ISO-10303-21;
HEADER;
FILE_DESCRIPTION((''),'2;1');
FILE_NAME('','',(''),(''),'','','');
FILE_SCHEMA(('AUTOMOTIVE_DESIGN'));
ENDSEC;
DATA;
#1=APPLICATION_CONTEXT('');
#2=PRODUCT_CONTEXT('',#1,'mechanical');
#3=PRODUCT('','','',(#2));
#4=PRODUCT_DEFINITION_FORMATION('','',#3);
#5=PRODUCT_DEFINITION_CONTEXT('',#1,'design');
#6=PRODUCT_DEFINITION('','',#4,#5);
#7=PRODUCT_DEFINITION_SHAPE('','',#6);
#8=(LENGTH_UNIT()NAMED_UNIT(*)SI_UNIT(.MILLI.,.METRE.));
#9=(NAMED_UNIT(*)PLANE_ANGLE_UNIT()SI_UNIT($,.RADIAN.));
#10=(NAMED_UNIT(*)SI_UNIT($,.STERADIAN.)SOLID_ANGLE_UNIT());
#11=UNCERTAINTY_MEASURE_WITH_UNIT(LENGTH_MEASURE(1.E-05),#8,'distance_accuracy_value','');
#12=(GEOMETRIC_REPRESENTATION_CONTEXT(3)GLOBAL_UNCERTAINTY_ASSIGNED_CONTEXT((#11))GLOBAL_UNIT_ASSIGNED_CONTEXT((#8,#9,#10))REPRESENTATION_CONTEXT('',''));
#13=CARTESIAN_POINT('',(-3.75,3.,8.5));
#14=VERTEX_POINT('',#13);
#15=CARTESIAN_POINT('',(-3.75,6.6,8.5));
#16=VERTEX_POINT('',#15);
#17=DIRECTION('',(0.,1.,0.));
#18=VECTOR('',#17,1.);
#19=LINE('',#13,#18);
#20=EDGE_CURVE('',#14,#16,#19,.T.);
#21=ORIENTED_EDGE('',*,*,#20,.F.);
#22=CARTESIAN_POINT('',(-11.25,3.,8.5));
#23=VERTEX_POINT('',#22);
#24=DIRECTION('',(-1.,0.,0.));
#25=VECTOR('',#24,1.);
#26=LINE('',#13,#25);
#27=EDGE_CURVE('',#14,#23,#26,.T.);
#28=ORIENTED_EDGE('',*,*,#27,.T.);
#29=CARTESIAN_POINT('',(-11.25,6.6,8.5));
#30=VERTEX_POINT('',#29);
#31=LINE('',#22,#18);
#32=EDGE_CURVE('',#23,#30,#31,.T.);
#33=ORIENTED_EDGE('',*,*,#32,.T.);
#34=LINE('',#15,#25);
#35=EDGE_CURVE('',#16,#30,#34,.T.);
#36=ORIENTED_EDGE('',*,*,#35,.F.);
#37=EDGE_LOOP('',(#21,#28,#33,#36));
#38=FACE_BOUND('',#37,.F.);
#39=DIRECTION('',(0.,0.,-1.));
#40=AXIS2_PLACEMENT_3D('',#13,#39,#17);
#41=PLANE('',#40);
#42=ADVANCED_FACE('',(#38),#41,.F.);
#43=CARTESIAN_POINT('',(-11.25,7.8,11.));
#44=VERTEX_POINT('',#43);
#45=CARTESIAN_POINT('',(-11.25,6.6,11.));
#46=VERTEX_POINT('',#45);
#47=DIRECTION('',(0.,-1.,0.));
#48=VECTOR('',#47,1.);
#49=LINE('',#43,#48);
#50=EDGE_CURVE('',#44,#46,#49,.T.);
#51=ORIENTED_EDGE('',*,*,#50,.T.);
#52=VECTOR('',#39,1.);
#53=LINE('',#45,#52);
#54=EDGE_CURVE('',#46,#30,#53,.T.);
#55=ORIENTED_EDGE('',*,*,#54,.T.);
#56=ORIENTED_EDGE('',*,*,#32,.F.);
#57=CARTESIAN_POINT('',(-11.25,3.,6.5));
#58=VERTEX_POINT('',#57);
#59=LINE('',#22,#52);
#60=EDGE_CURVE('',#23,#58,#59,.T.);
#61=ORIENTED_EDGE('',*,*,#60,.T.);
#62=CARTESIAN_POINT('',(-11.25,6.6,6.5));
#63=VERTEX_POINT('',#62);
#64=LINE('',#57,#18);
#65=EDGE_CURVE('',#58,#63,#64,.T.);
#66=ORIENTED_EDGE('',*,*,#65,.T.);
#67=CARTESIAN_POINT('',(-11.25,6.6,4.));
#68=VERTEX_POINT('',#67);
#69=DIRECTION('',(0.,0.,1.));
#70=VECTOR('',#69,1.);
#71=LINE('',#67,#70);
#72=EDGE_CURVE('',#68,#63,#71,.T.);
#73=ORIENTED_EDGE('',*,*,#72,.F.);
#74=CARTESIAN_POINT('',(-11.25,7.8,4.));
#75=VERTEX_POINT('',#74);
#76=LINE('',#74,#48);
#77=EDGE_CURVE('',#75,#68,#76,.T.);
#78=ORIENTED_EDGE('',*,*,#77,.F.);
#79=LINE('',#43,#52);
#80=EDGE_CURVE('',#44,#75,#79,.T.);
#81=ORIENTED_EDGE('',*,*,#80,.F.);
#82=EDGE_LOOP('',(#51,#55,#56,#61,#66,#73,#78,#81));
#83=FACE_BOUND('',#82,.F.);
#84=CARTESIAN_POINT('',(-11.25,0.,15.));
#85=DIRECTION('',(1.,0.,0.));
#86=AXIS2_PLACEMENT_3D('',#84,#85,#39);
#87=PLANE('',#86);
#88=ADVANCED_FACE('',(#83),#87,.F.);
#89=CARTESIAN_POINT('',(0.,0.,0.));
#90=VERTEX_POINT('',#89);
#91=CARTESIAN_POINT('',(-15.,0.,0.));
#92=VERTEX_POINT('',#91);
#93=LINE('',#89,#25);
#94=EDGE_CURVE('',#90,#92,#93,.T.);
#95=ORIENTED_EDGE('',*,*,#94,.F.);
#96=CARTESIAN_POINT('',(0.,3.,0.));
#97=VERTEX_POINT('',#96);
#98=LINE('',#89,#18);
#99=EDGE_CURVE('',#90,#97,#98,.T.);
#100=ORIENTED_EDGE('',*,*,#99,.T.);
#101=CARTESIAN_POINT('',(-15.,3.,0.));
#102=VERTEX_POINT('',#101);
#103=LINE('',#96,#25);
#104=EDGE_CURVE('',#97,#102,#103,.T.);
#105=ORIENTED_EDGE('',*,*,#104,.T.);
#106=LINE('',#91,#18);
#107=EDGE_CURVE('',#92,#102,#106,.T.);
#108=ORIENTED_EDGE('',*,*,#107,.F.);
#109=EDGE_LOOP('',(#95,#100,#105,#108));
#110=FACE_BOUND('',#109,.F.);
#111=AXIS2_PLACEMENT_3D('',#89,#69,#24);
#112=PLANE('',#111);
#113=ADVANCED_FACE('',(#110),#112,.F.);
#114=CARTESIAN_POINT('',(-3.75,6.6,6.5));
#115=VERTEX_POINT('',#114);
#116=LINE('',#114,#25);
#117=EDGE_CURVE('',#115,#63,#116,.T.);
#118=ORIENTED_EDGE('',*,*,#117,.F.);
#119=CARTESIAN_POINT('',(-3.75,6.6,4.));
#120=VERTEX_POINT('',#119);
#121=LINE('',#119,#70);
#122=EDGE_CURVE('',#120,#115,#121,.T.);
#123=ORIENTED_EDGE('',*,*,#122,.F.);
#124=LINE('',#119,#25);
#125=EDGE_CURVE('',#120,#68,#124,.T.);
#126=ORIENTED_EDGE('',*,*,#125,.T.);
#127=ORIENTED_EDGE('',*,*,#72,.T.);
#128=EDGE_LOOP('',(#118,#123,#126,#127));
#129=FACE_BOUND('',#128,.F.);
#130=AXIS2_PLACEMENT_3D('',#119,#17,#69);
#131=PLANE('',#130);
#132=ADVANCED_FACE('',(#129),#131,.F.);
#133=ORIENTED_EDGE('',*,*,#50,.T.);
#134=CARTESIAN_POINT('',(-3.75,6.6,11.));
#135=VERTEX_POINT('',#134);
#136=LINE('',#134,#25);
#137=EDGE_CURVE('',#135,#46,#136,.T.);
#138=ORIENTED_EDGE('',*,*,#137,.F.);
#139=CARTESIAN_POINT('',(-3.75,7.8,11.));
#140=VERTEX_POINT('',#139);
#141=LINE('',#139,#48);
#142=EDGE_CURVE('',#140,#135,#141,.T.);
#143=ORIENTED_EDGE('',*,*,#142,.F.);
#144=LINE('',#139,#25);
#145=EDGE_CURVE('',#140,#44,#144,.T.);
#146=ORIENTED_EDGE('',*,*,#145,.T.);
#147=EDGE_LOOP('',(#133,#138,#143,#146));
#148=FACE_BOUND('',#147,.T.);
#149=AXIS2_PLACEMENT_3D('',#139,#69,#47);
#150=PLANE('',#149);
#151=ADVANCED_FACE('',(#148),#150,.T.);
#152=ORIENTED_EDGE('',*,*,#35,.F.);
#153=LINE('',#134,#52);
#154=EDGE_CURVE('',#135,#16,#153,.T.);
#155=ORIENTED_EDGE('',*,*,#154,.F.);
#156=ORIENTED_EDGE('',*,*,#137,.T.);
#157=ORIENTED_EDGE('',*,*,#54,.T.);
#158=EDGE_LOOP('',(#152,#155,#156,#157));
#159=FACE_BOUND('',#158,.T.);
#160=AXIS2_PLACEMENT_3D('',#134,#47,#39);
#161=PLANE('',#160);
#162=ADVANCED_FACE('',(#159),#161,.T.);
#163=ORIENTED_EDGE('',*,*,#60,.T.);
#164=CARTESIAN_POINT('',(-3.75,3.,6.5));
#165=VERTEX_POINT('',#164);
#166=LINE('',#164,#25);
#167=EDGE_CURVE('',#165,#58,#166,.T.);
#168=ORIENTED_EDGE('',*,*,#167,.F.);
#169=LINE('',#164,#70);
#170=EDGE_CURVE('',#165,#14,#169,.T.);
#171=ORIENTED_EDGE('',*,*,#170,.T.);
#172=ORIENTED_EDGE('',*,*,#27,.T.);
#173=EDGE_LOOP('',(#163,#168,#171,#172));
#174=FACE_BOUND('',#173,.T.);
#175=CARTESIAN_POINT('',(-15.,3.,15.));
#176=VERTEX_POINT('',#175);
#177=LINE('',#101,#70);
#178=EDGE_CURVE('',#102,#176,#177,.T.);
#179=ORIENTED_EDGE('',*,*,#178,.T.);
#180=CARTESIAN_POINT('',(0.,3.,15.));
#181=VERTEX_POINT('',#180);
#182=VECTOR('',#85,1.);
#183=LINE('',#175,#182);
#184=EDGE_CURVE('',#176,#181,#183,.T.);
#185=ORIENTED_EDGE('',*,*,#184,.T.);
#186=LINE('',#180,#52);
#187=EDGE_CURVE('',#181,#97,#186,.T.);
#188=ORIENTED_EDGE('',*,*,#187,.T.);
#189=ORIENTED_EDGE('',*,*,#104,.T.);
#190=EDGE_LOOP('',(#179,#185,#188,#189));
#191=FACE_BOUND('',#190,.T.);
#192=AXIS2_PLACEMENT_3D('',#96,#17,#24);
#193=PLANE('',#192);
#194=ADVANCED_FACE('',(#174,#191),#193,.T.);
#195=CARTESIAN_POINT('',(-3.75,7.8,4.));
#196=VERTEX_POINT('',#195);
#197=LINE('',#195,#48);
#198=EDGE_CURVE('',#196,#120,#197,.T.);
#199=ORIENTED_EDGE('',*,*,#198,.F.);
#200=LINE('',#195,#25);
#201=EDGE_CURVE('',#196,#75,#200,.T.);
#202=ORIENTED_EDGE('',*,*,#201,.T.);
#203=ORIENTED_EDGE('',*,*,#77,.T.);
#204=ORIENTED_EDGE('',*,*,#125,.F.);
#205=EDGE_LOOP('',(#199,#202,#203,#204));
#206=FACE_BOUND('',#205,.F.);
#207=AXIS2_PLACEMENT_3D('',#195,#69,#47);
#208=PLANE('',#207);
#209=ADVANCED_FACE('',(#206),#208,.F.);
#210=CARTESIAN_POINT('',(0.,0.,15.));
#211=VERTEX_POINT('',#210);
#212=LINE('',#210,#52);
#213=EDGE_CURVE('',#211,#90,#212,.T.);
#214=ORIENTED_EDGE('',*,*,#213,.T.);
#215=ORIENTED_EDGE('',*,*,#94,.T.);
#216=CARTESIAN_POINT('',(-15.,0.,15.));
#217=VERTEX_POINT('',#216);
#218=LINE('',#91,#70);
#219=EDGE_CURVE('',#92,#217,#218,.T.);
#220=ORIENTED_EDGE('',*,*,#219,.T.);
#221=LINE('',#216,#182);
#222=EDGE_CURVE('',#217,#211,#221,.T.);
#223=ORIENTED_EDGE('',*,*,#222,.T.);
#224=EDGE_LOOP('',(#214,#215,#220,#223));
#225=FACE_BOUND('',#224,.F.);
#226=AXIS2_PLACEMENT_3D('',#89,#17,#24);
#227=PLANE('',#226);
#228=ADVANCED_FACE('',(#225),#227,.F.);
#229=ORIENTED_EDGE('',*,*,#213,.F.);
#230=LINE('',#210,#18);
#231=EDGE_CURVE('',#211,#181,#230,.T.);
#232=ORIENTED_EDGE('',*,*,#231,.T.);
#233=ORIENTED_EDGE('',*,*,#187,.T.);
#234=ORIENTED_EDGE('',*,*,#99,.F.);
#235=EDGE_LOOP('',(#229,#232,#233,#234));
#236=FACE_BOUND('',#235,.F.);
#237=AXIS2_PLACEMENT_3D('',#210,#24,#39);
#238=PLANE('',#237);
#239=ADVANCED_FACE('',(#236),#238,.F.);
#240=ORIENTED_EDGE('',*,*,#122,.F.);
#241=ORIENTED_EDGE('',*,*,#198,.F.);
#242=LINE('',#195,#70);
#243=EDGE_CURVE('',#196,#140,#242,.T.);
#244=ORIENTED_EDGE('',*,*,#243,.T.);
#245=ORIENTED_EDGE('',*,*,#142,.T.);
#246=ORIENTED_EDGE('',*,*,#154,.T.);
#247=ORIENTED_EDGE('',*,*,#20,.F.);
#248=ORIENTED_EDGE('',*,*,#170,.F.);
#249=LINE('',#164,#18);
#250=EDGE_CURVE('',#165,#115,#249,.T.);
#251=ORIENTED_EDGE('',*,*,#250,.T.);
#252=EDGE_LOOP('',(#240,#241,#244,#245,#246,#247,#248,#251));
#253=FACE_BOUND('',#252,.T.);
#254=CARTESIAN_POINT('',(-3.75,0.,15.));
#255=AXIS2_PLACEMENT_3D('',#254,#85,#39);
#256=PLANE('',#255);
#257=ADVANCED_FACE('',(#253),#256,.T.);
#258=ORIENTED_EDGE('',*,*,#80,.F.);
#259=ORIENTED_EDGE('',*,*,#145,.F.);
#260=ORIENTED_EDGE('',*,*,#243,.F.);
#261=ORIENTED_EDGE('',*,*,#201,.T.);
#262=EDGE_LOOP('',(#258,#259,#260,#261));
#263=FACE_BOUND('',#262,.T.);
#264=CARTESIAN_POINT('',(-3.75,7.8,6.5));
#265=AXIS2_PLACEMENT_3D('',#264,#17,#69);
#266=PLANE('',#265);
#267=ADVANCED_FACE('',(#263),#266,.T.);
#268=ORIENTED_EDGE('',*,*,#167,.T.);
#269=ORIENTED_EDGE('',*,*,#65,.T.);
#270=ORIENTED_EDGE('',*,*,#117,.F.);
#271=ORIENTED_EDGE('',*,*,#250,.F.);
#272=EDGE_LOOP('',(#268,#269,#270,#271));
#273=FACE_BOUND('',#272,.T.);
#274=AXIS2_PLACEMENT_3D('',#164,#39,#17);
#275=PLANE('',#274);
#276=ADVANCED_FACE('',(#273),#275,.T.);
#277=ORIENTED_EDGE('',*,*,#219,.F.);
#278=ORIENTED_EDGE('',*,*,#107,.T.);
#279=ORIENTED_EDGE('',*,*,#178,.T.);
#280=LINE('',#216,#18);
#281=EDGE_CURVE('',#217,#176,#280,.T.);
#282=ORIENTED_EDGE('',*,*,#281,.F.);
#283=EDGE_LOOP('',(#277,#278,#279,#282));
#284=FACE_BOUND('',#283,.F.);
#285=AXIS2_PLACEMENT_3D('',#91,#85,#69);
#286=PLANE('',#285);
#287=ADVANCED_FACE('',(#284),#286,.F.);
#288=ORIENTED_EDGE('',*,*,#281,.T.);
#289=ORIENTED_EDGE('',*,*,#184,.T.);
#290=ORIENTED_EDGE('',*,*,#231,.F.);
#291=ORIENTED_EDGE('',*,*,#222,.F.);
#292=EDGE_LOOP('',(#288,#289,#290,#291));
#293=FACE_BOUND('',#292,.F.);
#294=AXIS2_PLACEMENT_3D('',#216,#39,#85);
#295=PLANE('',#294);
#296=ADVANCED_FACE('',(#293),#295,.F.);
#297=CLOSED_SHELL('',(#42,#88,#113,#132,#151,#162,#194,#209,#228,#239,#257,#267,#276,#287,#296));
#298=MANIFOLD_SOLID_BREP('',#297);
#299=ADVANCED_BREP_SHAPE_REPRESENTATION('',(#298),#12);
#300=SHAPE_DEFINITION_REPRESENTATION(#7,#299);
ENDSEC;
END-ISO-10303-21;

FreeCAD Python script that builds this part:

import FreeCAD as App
import Part
import Sketcher
from FreeCAD import Vector
Q = App.Units.Quantity

doc = App.newDocument("Part")
body = doc.addObject("PartDesign::Body", "Body")

# Sketch on XZ plane
sketch1 = body.newObject("Sketcher::SketchObject", "Sketch")
sketch1.AttachmentSupport = (doc.getObject("XZ_Plane"), [""])
sketch1.MapMode = "FlatFace"
sketch1.addGeometry(Part.LineSegment(Vector(0, 15, 0), Vector(0, 0, 0)), False)
sketch1.addGeometry(Part.LineSegment(Vector(0, 0, 0), Vector(-15, 0, 0)), False)
sketch1.addGeometry(Part.LineSegment(Vector(-15, 0, 0), Vector(-15, 15, 0)), False)
sketch1.addGeometry(Part.LineSegment(Vector(-15, 15, 0), Vector(0, 15, 0)), False)
sketch1.addConstraint(Sketcher.Constraint("Coincident", 0, 2, 1, 1))
sketch1.addConstraint(Sketcher.Constraint("Coincident", 1, 2, 2, 1))
sketch1.addConstraint(Sketcher.Constraint("Coincident", 2, 2, 3, 1))
sketch1.addConstraint(Sketcher.Constraint("Coincident", 3, 2, 0, 1))
sketch1.addConstraint(Sketcher.Constraint("Vertical", 0))
sketch1.addConstraint(Sketcher.Constraint("Horizontal", 1))
sketch1.addConstraint(Sketcher.Constraint("Vertical", 2))
sketch1.addConstraint(Sketcher.Constraint("Horizontal", 3))
sketch1.addConstraint(Sketcher.Constraint("Coincident", 0, 2, -1, 1))
sketch1.addConstraint(Sketcher.Constraint("Equal", 3, 0))
sketch1.addConstraint(Sketcher.Constraint("DistanceX", 1, 2, 1, 1, Q("15 mm")))
pad1 = body.newObject("PartDesign::Pad", "Pad")
pad1.Profile = sketch1
pad1.Length = 3
pad1.Reversed = True

# Sketch on YZ plane
sketch2 = body.newObject("Sketcher::SketchObject", "Sketch001")
sketch2.AttachmentSupport = (doc.getObject("YZ_Plane"), [""])
sketch2.MapMode = "FlatFace"
sketch2.AttachmentOffset = App.Placement(Vector(0, 0, -3.75), App.Rotation())
sketch2.addGeometry(Part.LineSegment(Vector(3, 6.5, 0), Vector(6.6, 6.5, 0)), False)
sketch2.addGeometry(Part.LineSegment(Vector(6.6, 6.5, 0), Vector(6.6, 4, 0)), False)
sketch2.addGeometry(Part.LineSegment(Vector(6.6, 4, 0), Vector(7.8, 4, 0)), False)
sketch2.addGeometry(Part.LineSegment(Vector(7.8, 4, 0), Vector(7.8, 11, 0)), False)
sketch2.addGeometry(Part.LineSegment(Vector(7.8, 11, 0), Vector(6.6, 11, 0)), False)
sketch2.addGeometry(Part.LineSegment(Vector(6.6, 11, 0), Vector(6.6, 8.5, 0)), False)
sketch2.addGeometry(Part.LineSegment(Vector(6.6, 8.5, 0), Vector(3, 8.5, 0)), False)
sketch2.addGeometry(Part.LineSegment(Vector(3, 8.5, 0), Vector(3, 6.5, 0)), False)
sketch2.addConstraint(Sketcher.Constraint("Coincident", 0, 2, 1, 1))
sketch2.addConstraint(Sketcher.Constraint("Coincident", 1, 2, 2, 1))
sketch2.addConstraint(Sketcher.Constraint("Coincident", 2, 2, 3, 1))
sketch2.addConstraint(Sketcher.Constraint("Coincident", 3, 2, 4, 1))
sketch2.addConstraint(Sketcher.Constraint("Coincident", 4, 2, 5, 1))
sketch2.addConstraint(Sketcher.Constraint("Coincident", 5, 2, 6, 1))
sketch2.addConstraint(Sketcher.Constraint("Coincident", 6, 2, 7, 1))
sketch2.addConstraint(Sketcher.Constraint("Coincident", 7, 2, 0, 1))
sketch2.addConstraint(Sketcher.Constraint("Horizontal", 0))
sketch2.addConstraint(Sketcher.Constraint("Vertical", 1))
sketch2.addConstraint(Sketcher.Constraint("Horizontal", 2))
sketch2.addConstraint(Sketcher.Constraint("Vertical", 3))
sketch2.addConstraint(Sketcher.Constraint("Horizontal", 4))
sketch2.addConstraint(Sketcher.Constraint("Vertical", 5))
sketch2.addConstraint(Sketcher.Constraint("Horizontal", 6))
sketch2.addConstraint(Sketcher.Constraint("Vertical", 7))
sketch2.addConstraint(Sketcher.Constraint("Vertical", 1, 2, 4, 2))
sketch2.addConstraint(Sketcher.Constraint("Equal", 1, 5))
sketch2.addConstraint(Sketcher.Constraint("DistanceY", 3, 1, 3, 2, Q("7 mm")))
sketch2.addConstraint(Sketcher.Constraint("DistanceX", 2, 1, 2, 2, Q("1.2 mm")))
sketch2.addConstraint(Sketcher.Constraint("DistanceX", 6, 2, 3, 2, Q("4.8 mm")))
sketch2.addConstraint(Sketcher.Constraint("DistanceY", 7, 2, 7, 1, Q("2 mm")))
sketch2.addConstraint(Sketcher.Constraint("DistanceY", -1, 1, 1, 2, Q("4 mm")))
sketch2.addConstraint(Sketcher.Constraint("DistanceX", -1, 1, 6, 2, Q("3 mm")))
pad2 = body.newObject("PartDesign::Pad", "Pad001")
pad2.Profile = sketch2
pad2.Length = 7.5
pad2.Reversed = True

doc.recompute()
